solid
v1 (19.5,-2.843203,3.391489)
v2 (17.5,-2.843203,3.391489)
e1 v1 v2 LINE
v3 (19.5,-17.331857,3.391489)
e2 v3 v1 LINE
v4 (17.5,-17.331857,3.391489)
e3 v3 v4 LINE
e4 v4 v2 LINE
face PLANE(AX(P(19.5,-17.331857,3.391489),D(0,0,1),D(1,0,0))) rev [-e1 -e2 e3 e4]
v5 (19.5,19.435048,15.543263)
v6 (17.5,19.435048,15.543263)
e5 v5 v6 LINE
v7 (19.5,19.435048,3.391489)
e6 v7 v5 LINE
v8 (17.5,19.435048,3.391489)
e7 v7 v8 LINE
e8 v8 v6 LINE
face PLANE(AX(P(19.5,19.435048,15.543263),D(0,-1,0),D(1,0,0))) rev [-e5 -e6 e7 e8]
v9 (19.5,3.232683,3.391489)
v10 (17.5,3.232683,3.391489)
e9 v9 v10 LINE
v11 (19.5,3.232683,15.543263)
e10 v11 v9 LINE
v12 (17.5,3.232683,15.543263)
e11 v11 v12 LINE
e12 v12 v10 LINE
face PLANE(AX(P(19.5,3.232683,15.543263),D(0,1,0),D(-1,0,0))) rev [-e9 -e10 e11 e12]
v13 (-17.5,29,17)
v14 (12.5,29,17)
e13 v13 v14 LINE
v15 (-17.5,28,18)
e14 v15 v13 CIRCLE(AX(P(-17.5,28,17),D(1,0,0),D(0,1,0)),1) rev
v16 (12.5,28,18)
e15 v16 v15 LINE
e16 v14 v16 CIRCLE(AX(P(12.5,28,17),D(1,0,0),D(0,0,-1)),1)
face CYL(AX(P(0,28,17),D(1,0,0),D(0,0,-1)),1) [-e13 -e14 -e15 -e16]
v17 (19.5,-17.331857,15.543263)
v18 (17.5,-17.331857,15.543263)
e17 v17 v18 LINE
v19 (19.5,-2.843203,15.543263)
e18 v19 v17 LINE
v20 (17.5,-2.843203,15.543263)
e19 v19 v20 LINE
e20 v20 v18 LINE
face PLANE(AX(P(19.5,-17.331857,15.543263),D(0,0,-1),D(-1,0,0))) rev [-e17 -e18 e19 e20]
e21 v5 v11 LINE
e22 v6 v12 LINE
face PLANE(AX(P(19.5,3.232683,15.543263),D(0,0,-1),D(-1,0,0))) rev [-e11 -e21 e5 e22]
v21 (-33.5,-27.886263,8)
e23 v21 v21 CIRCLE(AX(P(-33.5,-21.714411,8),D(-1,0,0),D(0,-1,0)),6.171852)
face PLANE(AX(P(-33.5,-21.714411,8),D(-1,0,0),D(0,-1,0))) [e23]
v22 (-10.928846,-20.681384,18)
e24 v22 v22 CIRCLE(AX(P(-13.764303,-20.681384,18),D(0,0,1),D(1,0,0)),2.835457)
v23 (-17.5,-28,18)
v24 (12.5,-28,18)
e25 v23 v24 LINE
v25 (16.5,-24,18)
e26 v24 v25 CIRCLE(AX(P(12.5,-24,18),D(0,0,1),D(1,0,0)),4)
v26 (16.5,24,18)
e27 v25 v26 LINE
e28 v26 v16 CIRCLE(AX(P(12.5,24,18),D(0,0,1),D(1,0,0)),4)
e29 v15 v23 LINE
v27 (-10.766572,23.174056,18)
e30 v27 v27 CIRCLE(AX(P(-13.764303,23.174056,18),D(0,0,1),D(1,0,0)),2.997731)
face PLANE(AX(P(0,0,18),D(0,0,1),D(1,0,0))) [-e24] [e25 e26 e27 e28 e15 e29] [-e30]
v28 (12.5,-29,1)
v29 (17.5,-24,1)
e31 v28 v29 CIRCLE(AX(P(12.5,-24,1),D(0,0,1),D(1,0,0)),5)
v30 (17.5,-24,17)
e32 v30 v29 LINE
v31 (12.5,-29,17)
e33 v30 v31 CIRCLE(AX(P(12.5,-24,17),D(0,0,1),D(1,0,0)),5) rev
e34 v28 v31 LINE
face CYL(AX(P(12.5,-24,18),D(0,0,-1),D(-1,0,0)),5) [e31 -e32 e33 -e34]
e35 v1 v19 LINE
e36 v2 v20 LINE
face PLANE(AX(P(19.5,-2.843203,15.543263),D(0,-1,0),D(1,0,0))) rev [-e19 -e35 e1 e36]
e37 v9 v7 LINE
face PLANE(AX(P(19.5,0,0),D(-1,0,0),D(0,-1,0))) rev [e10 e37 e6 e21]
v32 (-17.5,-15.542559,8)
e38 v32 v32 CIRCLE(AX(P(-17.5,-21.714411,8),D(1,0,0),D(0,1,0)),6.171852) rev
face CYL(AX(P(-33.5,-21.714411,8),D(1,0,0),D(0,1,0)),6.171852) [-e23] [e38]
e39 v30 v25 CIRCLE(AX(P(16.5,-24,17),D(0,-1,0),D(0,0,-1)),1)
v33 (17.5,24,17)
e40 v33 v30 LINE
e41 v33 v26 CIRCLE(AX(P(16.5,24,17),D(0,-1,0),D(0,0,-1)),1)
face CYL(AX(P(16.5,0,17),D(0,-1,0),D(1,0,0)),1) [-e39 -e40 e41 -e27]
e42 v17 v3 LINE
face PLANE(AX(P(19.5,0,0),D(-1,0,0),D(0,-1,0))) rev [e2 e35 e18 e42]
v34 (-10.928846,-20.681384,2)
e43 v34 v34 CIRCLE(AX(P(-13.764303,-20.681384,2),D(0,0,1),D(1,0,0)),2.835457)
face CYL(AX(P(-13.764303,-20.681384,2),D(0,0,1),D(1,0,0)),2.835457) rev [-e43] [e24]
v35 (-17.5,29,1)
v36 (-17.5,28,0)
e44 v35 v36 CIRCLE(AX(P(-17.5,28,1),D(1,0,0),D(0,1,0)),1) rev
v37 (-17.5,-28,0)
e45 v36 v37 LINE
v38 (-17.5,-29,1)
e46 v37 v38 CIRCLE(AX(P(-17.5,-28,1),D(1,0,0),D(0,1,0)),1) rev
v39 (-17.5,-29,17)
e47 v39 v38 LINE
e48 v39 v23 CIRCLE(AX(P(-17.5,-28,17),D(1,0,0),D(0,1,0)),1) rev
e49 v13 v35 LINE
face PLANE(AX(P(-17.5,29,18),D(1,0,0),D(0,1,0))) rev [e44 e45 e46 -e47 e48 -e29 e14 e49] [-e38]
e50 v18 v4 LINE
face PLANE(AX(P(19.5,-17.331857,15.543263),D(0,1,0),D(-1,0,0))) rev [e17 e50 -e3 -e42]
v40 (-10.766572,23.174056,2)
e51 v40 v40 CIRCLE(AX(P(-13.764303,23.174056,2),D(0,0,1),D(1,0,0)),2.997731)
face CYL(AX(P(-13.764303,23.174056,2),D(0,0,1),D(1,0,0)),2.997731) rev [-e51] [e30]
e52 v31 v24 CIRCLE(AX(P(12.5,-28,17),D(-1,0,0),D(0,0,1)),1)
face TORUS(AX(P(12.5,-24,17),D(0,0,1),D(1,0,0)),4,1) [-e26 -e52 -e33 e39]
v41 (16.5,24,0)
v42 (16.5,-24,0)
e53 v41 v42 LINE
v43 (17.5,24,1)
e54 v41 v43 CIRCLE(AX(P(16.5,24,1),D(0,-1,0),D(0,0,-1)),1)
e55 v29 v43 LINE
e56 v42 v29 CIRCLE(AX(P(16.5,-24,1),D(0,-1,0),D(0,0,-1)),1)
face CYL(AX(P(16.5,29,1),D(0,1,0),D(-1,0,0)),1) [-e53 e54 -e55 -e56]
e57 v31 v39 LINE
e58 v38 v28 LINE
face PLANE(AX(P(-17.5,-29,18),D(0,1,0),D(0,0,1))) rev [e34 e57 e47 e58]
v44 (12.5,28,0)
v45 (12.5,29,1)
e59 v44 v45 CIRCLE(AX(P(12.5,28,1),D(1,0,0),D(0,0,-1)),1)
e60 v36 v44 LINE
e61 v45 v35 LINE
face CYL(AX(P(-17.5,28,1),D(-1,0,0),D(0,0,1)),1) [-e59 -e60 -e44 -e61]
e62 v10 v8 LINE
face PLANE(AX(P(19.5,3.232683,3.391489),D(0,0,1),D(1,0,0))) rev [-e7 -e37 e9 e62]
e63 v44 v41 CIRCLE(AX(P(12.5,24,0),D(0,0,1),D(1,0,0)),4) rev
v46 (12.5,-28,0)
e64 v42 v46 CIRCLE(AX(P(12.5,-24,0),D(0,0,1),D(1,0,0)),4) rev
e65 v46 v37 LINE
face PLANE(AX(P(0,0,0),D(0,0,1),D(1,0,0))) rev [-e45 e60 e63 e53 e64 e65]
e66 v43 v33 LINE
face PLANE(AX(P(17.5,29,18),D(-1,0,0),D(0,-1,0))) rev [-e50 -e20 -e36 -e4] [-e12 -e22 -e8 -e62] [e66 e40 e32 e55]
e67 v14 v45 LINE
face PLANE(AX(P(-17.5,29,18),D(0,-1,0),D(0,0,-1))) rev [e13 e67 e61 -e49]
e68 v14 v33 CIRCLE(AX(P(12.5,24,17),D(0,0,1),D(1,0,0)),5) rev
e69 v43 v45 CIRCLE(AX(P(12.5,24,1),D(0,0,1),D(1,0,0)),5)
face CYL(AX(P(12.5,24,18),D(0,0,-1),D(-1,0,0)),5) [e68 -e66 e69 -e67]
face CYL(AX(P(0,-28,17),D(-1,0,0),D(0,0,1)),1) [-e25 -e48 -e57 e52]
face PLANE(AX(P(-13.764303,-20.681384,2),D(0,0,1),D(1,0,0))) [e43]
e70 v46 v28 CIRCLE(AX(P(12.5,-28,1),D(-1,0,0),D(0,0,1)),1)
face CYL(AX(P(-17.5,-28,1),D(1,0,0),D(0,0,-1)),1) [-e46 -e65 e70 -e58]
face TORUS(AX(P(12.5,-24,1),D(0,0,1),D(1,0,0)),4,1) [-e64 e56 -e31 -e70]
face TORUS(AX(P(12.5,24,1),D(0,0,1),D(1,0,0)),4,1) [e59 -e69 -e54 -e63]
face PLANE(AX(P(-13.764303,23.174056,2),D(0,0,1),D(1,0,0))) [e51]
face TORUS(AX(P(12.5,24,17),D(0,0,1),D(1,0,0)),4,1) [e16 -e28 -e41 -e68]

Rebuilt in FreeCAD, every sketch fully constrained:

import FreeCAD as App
import Part
import Sketcher

V = App.Vector


def edges_at(feature, points):
    """Names of the edges that pass closest to the given points."""
    edges = feature.Shape.Edges
    near = lambda p: min(range(len(edges)), key=lambda i: edges[i].distToShape(Part.Vertex(*p))[0])
    return sorted({f"Edge{near(p) + 1}" for p in points})

doc = App.newDocument("Part")
body = doc.addObject("PartDesign::Body", "Body")

sketch1 = body.newObject("Sketcher::SketchObject", "Sketch")
sketch1.AttachmentSupport = (doc.getObject("XY_Plane"), [""])
sketch1.MapMode = "FlatFace"
sketch1.addGeometry(Part.LineSegment(V(-17.5, 29, 0), V(-17.5, -29, 0)), False)
sketch1.addGeometry(Part.LineSegment(V(-17.5, -29, 0), V(17.5, -29, 0)), False)
sketch1.addGeometry(Part.LineSegment(V(17.5, -29, 0), V(17.5, 29, 0)), False)
sketch1.addGeometry(Part.LineSegment(V(17.5, 29, 0), V(-17.5, 29, 0)), False)
sketch1.addConstraint(Sketcher.Constraint("Coincident", 0, 2, 1, 1))
sketch1.addConstraint(Sketcher.Constraint("Coincident", 1, 2, 2, 1))
sketch1.addConstraint(Sketcher.Constraint("Coincident", 2, 2, 3, 1))
sketch1.addConstraint(Sketcher.Constraint("Coincident", 3, 2, 0, 1))
sketch1.addConstraint(Sketcher.Constraint("Vertical", 0))
sketch1.addConstraint(Sketcher.Constraint("Horizontal", 1))
sketch1.addConstraint(Sketcher.Constraint("Vertical", 2))
sketch1.addConstraint(Sketcher.Constraint("Horizontal", 3))
sketch1.addConstraint(Sketcher.Constraint("Symmetric", 0, 2, 2, 2, -1, 1))
sketch1.addConstraint(Sketcher.Constraint("DistanceX", 1, 1, 1, 2, 35.0))
sketch1.addConstraint(Sketcher.Constraint("DistanceY", 0, 2, 0, 1, 58.0))
pad1 = body.newObject("PartDesign::Pad", "Pad")
pad1.Profile = sketch1
pad1.Length = 18

sketch2 = body.newObject("Sketcher::SketchObject", "Sketch001")
sketch2.AttachmentSupport = (doc.getObject("YZ_Plane"), [""])
sketch2.MapMode = "FlatFace"
sketch2.AttachmentOffset = App.Placement(V(0, 0, -17.5), App.Rotation())
sketch2.addGeometry(Part.Circle(V(-21.714411, 8, 0), V(0, 0, 1), 6.171852), False)
sketch2.addConstraint(Sketcher.Constraint("DistanceY", -1, 1, 0, 3, 8.0))
sketch2.addConstraint(Sketcher.Constraint("Diameter", 0, 12.343704))
sketch2.addConstraint(Sketcher.Constraint("DistanceX", 0, 3, -1, 1, 21.714411))
pad2 = body.newObject("PartDesign::Pad", "Pad001")
pad2.Profile = sketch2
pad2.Length = 16
pad2.Reversed = True
doc.recompute()

fillet = body.newObject("PartDesign::Fillet", "Fillet")
fillet.Base = (pad2, edges_at(pad2, [(17.5, -29, 9), (17.5, 29, 9)]))
fillet.Radius = 5
doc.recompute()

fillet2 = body.newObject("PartDesign::Fillet", "Fillet001")
fillet2.Base = (fillet, edges_at(fillet, [
    (-2.5, -29, 18),
    (17.5, 0, 0),
    (17.5, 0, 18),
    (-2.5, 29, 0),
    (16.036, 27.536, 0),
    (16.036, -27.536, 0),
    (-2.5, 29, 18),
    (16.036, 27.536, 18),
    (16.036, -27.536, 18),
    (-2.5, -29, 0),
]))
fillet2.Radius = 1

sketch3 = body.newObject("Sketcher::SketchObject", "Sketch002")
sketch3.AttachmentSupport = (doc.getObject("XY_Plane"), [""])
sketch3.MapMode = "FlatFace"
sketch3.AttachmentOffset = App.Placement(V(0, 0, 18), App.Rotation())
sketch3.addGeometry(Part.Circle(V(-13.764303, 23.174056, 0), V(0, 0, 1), 2.997731), False)
sketch3.addGeometry(Part.Circle(V(-13.764303, -20.681384, 0), V(0, 0, 1), 2.835457), False)
sketch3.addConstraint(Sketcher.Constraint("Vertical", 0, 3, 1, 3))
sketch3.addConstraint(Sketcher.Constraint("Diameter", 0, 5.995461))
sketch3.addConstraint(Sketcher.Constraint("Diameter", 1, 5.670913))
sketch3.addConstraint(Sketcher.Constraint("DistanceY", 1, 3, 0, 3, 43.85544))
sketch3.addConstraint(Sketcher.Constraint("DistanceX", 0, 3, -1, 1, 13.764303))
sketch3.addConstraint(Sketcher.Constraint("DistanceY", -1, 1, 0, 3, 23.174056))
pocket1 = body.newObject("PartDesign::Pocket", "Pocket")
pocket1.Profile = sketch3
pocket1.Length = 16

sketch4 = body.newObject("Sketcher::SketchObject", "Sketch003")
sketch4.AttachmentSupport = (doc.getObject("YZ_Plane"), [""])
sketch4.MapMode = "FlatFace"
sketch4.AttachmentOffset = App.Placement(V(0, 0, 17.5), App.Rotation())
sketch4.addGeometry(Part.LineSegment(V(19.435048, 15.543263, 0), V(3.232683, 15.543263, 0)), False)
sketch4.addGeometry(Part.LineSegment(V(3.232683, 15.543263, 0), V(3.232683, 3.391489, 0)), False)
sketch4.addGeometry(Part.LineSegment(V(3.232683, 3.391489, 0), V(19.435048, 3.391489, 0)), False)
sketch4.addGeometry(Part.LineSegment(V(19.435048, 3.391489, 0), V(19.435048, 15.543263, 0)), False)
sketch4.addGeometry(Part.LineSegment(V(-2.843203, 15.543263, 0), V(-17.331857, 15.543263, 0)), False)
sketch4.addGeometry(Part.LineSegment(V(-17.331857, 15.543263, 0), V(-17.331857, 3.391489, 0)), False)
sketch4.addGeometry(Part.LineSegment(V(-17.331857, 3.391489, 0), V(-2.843203, 3.391489, 0)), False)
sketch4.addGeometry(Part.LineSegment(V(-2.843203, 3.391489, 0), V(-2.843203, 15.543263, 0)), False)
sketch4.addConstraint(Sketcher.Constraint("Coincident", 0, 2, 1, 1))
sketch4.addConstraint(Sketcher.Constraint("Coincident", 1, 2, 2, 1))
sketch4.addConstraint(Sketcher.Constraint("Coincident", 2, 2, 3, 1))
sketch4.addConstraint(Sketcher.Constraint("Coincident", 3, 2, 0, 1))
sketch4.addConstraint(Sketcher.Constraint("Coincident", 4, 2, 5, 1))
sketch4.addConstraint(Sketcher.Constraint("Coincident", 5, 2, 6, 1))
sketch4.addConstraint(Sketcher.Constraint("Coincident", 6, 2, 7, 1))
sketch4.addConstraint(Sketcher.Constraint("Coincident", 7, 2, 4, 1))
sketch4.addConstraint(Sketcher.Constraint("Horizontal", 0))
sketch4.addConstraint(Sketcher.Constraint("Vertical", 1))
sketch4.addConstraint(Sketcher.Constraint("Horizontal", 2))
sketch4.addConstraint(Sketcher.Constraint("Vertical", 3))
sketch4.addConstraint(Sketcher.Constraint("Horizontal", 4))
sketch4.addConstraint(Sketcher.Constraint("Vertical", 5))
sketch4.addConstraint(Sketcher.Constraint("Horizontal", 6))
sketch4.addConstraint(Sketcher.Constraint("Vertical", 7))
sketch4.addConstraint(Sketcher.Constraint("Horizontal", 3, 2, 4, 2))
sketch4.addConstraint(Sketcher.Constraint("Horizontal", 2, 2, 5, 2))
sketch4.addConstraint(Sketcher.Constraint("DistanceX", 0, 2, 0, 1, 16.202365))
sketch4.addConstraint(Sketcher.Constraint("DistanceX", 4, 2, 4, 1, 14.488653))
sketch4.addConstraint(Sketcher.Constraint("DistanceY", 1, 2, 1, 1, 12.151774))
sketch4.addConstraint(Sketcher.Constraint("DistanceY", -1, 1, 1, 2, 3.391489))
sketch4.addConstraint(Sketcher.Constraint("DistanceX", -1, 1, 2, 2, 19.435048))
sketch4.addConstraint(Sketcher.Constraint("DistanceX", 4, 2, 0, 2, 20.56454))
pad3 = body.newObject("PartDesign::Pad", "Pad002")
pad3.Profile = sketch4
pad3.Length = 2

doc.recompute()
